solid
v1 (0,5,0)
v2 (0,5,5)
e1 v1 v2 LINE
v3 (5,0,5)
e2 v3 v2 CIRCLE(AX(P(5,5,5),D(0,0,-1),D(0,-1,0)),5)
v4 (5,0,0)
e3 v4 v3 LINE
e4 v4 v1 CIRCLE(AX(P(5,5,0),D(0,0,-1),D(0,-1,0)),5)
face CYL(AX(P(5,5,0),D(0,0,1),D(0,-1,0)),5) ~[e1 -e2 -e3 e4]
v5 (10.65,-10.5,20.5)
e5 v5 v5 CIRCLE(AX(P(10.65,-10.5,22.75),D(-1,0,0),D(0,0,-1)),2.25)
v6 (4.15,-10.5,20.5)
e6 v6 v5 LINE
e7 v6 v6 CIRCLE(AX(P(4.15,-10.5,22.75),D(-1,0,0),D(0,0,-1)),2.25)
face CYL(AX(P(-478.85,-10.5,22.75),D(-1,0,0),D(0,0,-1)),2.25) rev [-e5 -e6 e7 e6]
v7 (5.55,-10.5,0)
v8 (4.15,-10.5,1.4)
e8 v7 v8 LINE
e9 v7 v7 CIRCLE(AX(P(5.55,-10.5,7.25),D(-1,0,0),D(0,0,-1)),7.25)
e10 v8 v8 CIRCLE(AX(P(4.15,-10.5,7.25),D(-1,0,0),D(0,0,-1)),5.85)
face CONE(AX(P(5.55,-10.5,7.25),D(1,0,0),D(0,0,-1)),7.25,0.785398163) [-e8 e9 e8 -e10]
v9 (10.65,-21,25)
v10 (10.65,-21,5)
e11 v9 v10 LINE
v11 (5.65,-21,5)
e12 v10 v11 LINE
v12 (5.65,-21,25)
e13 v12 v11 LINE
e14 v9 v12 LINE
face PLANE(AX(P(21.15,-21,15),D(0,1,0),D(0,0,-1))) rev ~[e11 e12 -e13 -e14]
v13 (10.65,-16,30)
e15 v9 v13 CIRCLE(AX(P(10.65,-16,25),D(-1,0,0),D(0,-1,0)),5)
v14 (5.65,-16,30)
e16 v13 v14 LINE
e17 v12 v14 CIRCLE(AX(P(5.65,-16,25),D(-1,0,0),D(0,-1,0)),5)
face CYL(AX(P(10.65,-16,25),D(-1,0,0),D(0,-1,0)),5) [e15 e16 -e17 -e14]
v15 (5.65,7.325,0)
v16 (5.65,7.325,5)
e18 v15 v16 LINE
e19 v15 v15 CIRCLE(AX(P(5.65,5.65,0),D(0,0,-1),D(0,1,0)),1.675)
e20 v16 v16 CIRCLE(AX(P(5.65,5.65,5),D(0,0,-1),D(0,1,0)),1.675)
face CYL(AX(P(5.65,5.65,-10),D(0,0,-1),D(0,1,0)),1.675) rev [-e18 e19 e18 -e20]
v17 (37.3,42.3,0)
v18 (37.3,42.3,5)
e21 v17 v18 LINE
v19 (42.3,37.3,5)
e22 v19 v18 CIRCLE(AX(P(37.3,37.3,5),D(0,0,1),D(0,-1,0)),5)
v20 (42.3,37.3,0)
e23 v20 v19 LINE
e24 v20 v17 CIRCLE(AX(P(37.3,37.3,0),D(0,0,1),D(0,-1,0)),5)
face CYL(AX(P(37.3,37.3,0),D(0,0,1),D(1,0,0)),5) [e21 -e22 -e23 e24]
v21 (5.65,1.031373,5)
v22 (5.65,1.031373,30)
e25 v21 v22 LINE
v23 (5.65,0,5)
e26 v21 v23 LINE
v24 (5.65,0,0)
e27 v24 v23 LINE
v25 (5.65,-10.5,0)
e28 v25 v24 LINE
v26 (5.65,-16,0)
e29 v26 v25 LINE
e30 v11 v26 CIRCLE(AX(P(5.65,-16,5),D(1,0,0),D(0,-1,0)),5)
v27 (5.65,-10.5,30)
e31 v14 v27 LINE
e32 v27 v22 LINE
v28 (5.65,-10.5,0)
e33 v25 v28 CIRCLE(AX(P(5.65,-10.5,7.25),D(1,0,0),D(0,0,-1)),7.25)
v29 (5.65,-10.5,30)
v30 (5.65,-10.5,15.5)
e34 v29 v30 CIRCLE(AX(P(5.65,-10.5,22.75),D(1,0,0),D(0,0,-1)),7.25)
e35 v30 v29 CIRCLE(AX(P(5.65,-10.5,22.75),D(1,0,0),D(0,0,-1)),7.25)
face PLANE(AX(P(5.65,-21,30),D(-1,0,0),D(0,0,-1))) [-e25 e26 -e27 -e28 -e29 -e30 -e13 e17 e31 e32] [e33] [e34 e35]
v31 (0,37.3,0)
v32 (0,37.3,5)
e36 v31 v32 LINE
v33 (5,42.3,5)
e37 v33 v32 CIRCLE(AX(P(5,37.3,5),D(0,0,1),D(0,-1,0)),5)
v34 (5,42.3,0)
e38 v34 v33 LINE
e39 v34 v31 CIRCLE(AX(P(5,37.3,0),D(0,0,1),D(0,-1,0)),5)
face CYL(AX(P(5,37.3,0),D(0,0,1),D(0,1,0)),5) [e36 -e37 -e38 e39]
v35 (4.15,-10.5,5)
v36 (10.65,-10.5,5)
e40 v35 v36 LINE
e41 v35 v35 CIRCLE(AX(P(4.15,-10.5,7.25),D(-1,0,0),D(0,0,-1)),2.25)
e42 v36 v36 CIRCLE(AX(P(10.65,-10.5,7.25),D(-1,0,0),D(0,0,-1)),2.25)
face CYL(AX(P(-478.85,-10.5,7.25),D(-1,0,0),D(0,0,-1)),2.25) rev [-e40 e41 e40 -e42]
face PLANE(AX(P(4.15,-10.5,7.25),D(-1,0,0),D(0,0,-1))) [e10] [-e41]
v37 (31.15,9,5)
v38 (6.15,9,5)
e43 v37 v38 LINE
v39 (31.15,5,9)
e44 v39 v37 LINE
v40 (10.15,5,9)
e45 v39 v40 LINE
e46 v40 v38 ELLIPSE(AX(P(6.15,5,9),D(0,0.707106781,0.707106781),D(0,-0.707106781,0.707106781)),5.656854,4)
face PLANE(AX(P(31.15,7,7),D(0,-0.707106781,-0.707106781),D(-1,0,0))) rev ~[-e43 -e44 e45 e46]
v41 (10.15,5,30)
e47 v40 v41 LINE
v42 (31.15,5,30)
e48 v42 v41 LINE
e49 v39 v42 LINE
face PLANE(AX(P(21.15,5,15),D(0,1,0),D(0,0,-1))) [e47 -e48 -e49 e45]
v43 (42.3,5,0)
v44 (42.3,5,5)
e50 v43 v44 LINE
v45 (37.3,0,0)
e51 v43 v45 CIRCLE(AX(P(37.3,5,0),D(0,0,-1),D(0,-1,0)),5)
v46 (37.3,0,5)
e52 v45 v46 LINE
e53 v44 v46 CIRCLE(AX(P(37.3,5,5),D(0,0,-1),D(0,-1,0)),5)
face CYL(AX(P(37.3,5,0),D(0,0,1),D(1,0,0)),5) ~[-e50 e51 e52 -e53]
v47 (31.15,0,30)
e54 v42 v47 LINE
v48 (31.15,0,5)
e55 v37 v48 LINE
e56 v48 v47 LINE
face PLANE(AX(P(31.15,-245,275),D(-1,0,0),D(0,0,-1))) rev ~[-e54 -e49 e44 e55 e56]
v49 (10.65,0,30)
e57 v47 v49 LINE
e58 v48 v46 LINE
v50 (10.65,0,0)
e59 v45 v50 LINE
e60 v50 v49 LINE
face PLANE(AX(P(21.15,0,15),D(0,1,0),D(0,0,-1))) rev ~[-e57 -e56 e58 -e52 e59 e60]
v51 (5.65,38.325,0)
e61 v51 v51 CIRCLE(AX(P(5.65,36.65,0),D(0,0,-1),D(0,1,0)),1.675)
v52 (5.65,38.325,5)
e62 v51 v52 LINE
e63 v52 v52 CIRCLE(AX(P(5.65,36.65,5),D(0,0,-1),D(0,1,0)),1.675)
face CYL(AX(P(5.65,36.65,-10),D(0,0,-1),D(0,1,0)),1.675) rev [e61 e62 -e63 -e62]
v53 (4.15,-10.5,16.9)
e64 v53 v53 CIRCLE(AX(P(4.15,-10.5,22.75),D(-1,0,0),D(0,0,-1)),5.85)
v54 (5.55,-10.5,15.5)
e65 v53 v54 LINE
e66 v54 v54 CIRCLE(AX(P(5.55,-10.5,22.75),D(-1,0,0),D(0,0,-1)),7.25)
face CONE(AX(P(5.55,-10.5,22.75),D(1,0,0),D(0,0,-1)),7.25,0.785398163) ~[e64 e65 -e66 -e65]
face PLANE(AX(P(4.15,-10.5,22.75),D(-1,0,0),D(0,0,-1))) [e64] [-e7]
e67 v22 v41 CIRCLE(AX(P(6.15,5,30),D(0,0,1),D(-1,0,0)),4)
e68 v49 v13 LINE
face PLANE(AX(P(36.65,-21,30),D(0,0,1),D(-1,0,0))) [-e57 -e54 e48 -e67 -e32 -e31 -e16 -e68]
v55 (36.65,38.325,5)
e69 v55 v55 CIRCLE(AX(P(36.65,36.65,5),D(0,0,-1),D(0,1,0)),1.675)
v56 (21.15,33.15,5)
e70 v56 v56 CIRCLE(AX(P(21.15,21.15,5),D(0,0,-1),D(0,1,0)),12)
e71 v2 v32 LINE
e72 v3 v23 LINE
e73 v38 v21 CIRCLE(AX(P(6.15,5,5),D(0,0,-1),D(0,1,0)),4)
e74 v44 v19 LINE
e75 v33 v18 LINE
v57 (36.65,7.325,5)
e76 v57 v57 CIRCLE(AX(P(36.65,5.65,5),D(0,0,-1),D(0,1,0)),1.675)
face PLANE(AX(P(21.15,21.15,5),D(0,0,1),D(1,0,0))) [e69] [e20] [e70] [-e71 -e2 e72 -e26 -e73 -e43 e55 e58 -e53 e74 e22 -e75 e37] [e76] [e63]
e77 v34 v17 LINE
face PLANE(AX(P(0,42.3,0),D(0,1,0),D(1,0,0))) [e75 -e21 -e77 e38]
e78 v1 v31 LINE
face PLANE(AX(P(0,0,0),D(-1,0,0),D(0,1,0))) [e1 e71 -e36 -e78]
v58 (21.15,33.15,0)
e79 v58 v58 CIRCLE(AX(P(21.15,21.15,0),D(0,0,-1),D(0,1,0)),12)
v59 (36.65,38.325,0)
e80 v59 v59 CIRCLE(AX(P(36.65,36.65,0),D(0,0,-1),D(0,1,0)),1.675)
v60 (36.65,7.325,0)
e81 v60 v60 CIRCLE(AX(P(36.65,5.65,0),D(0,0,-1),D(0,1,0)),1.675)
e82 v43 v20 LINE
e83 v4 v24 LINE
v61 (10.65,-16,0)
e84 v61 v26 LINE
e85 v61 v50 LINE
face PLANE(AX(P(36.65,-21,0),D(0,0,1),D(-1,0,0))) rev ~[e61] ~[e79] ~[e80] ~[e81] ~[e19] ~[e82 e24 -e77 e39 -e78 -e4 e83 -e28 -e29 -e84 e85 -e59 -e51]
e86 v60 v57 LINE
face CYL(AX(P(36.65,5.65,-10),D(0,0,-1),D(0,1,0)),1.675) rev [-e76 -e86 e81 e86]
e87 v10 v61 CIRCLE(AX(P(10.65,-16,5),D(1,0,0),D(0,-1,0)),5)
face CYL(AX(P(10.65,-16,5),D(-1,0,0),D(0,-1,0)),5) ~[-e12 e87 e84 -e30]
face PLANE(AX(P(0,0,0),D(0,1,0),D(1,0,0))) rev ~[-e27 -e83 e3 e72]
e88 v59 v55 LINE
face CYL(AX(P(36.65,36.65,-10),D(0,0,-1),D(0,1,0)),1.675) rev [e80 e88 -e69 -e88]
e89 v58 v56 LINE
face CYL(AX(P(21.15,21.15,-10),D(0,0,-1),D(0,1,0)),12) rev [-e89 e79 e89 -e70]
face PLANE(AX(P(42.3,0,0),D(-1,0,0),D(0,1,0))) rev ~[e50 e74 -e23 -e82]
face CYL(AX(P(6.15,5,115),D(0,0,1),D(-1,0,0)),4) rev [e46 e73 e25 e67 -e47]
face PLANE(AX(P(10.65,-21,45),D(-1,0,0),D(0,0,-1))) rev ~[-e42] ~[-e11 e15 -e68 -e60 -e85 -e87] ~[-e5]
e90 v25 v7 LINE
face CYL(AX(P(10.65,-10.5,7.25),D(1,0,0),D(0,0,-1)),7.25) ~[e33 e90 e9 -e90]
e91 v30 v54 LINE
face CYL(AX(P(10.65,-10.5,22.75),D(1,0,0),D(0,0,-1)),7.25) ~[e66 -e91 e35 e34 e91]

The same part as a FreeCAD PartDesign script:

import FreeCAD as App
import Part
import Sketcher

V = App.Vector
Q = App.Units.Quantity


def edges_at(feature, points):
    """Names of the edges that pass closest to the given points."""
    edges = feature.Shape.Edges
    near = lambda p: min(range(len(edges)), key=lambda i: edges[i].distToShape(Part.Vertex(*p))[0])
    return sorted({f"Edge{near(p) + 1}" for p in points})

doc = App.newDocument("Part")
body = doc.addObject("PartDesign::Body", "Body")

sketch1 = doc.addObject("Sketcher::SketchObject", "Sketch")
body.addObject(sketch1)
sketch1.AttachmentSupport = (doc.XY_Plane, [""])
sketch1.MapMode = "FlatFace"
sketch1.AttachmentOffset = App.Placement(V(0, 0, -250), App.Rotation())
sketch1.addGeometry([
    Part.LineSegment(V(-250, -10, 0), V(-250, -510, 0)),
    Part.LineSegment(V(-250, -510, 0), V(250, -510, 0)),
    Part.LineSegment(V(250, -510, 0), V(250, -10, 0)),
    Part.LineSegment(V(250, -10, 0), V(-250, -10, 0)),
], False)
sketch1.addConstraint([
    Sketcher.Constraint("Coincident", 0, 2, 1, 1),
    Sketcher.Constraint("Coincident", 1, 2, 2, 1),
    Sketcher.Constraint("Coincident", 2, 2, 3, 1),
    Sketcher.Constraint("Coincident", 3, 2, 0, 1),
    Sketcher.Constraint("Vertical", 0),
    Sketcher.Constraint("Horizontal", 1),
    Sketcher.Constraint("Vertical", 2),
    Sketcher.Constraint("Horizontal", 3),
    Sketcher.Constraint("Equal", 3, 0),
    Sketcher.Constraint("DistanceX", 1, 1, 1, 2, Q("500 mm")),
    Sketcher.Constraint("DistanceX", 0, 2, -1, 1, Q("250 mm")),
    Sketcher.Constraint("DistanceY", 0, 2, -1, 1, Q("510 mm")),
])
pad1 = doc.addObject("PartDesign::Pad", "Pad")
body.addObject(pad1)
pad1.Profile = sketch1
pad1.Length = 500
body2 = doc.addObject("PartDesign::Body", "Body001")

sketch2 = doc.addObject("Sketcher::SketchObject", "Sketch001")
body2.addObject(sketch2)
sketch2.AttachmentSupport = (doc.getObject("XZ_Plane001"), [""])
sketch2.MapMode = "FlatFace"
sketch2.AttachmentOffset = App.Placement(V(0, 0, -500), App.Rotation())
sketch2.addGeometry(Part.Circle(V(15.5, 0, 0), V(0, 0, 1), 2.25), False)
sketch2.addConstraint([
    Sketcher.Constraint("PointOnObject", 0, 3, -1),
    Sketcher.Constraint("Diameter", 0, Q("4.5 mm")),
    Sketcher.Constraint("DistanceX", -1, 1, 0, 3, Q("15.5 mm")),
])
pad2 = doc.addObject("PartDesign::Pad", "Pad001")
body2.addObject(pad2)
pad2.Profile = sketch2
pad2.Length = 1000
body3 = doc.addObject("PartDesign::Body", "Body002")
body3.AllowCompound = True

sketch3 = doc.addObject("Sketcher::SketchObject", "Sketch002")
body3.addObject(sketch3)
sketch3.AttachmentSupport = (doc.getObject("XZ_Plane002"), [""])
sketch3.MapMode = "FlatFace"
sketch3.AttachmentOffset = App.Placement(V(0, 0, -500), App.Rotation())
sketch3.addGeometry(Part.Circle(V(0, 0, 0), V(0, 0, 1), 2.25), False)
sketch3.addConstraint([
    Sketcher.Constraint("Coincident", 0, 3, -1, 1),
    Sketcher.Constraint("Diameter", 0, Q("4.5 mm")),
])
pad3 = doc.addObject("PartDesign::Pad", "Pad002")
body3.addObject(pad3)
pad3.Profile = sketch3
pad3.Length = 1000
doc.recompute()

boolean = doc.addObject("PartDesign::Boolean", "Boolean")
body3.addObject(boolean)
boolean.Type = "Fuse"
boolean.addObjects([body2])
body4 = doc.addObject("PartDesign::Body", "Body003")
body4.AllowCompound = True
doc.recompute()

body3.Placement = App.Placement(V(2.25, 0, -15.5), App.Rotation(V(0, 0, 1), 0))
boolean2 = doc.addObject("PartDesign::Boolean", "Boolean001")
body4.addObject(boolean2)
boolean2.Type = "Fuse"
boolean2.addObjects([body3])
doc.recompute()

boolean3 = doc.addObject("PartDesign::Boolean", "Boolean002")
body4.addObject(boolean3)
boolean3.Type = "Fuse"
boolean3.addObjects([body])
body5 = doc.addObject("PartDesign::Body", "Body004")

sketch4 = doc.addObject("Sketcher::SketchObject", "Sketch003")
body5.addObject(sketch4)
sketch4.AttachmentSupport = (doc.getObject("XZ_Plane004"), [""])
sketch4.MapMode = "FlatFace"
sketch4.addGeometry(Part.Circle(V(15.5, 0, 0), V(0, 0, 1), 7.25), False)
sketch4.addConstraint([
    Sketcher.Constraint("PointOnObject", 0, 3, -1),
    Sketcher.Constraint("Diameter", 0, Q("14.5 mm")),
    Sketcher.Constraint("DistanceX", -1, 1, 0, 3, Q("15.5 mm")),
])
pad4 = doc.addObject("PartDesign::Pad", "Pad003")
body5.addObject(pad4)
pad4.Profile = sketch4
pad4.Length = 6.5
body6 = doc.addObject("PartDesign::Body", "Body005")
body6.AllowCompound = True

sketch5 = doc.addObject("Sketcher::SketchObject", "Sketch004")
body6.addObject(sketch5)
sketch5.AttachmentSupport = (doc.getObject("XZ_Plane005"), [""])
sketch5.MapMode = "FlatFace"
sketch5.addGeometry(Part.Circle(V(0, 0, 0), V(0, 0, 1), 7.25), False)
sketch5.addConstraint([
    Sketcher.Constraint("Coincident", 0, 3, -1, 1),
    Sketcher.Constraint("Diameter", 0, Q("14.5 mm")),
])
pad5 = doc.addObject("PartDesign::Pad", "Pad004")
body6.addObject(pad5)
pad5.Profile = sketch5
pad5.Length = 6.5
doc.recompute()

boolean4 = doc.addObject("PartDesign::Boolean", "Boolean003")
body6.addObject(boolean4)
boolean4.Type = "Fuse"
boolean4.addObjects([body5])
body7 = doc.addObject("PartDesign::Body", "Body006")
body7.AllowCompound = True
doc.recompute()

body6.Placement = App.Placement(V(2.25, 10.5, -15.5), App.Rotation(V(1, 0, 0), 180))
boolean5 = doc.addObject("PartDesign::Boolean", "Boolean004")
body7.addObject(boolean5)
boolean5.Type = "Fuse"
boolean5.addObjects([body6])
body8 = doc.addObject("PartDesign::Body", "Body007")

sketch6 = doc.addObject("Sketcher::SketchObject", "Sketch005")
body8.addObject(sketch6)
sketch6.AttachmentSupport = (doc.getObject("XZ_Plane007"), [""])
sketch6.MapMode = "FlatFace"
sketch6.addGeometry(Part.Circle(V(15.5, 0, 0), V(0, 0, 1), 7.25), False)
sketch6.addConstraint([
    Sketcher.Constraint("PointOnObject", 0, 3, -1),
    Sketcher.Constraint("Diameter", 0, Q("14.5 mm")),
    Sketcher.Constraint("DistanceX", -1, 1, 0, 3, Q("15.5 mm")),
])
pad6 = doc.addObject("PartDesign::Pad", "Pad005")
body8.addObject(pad6)
pad6.Profile = sketch6
pad6.Length = 6.5
body9 = doc.addObject("PartDesign::Body", "Body008")
body9.AllowCompound = True

sketch7 = doc.addObject("Sketcher::SketchObject", "Sketch006")
body9.addObject(sketch7)
sketch7.AttachmentSupport = (doc.getObject("XZ_Plane008"), [""])
sketch7.MapMode = "FlatFace"
sketch7.addGeometry(Part.Circle(V(0, 0, 0), V(0, 0, 1), 7.25), False)
sketch7.addConstraint([
    Sketcher.Constraint("Coincident", 0, 3, -1, 1),
    Sketcher.Constraint("Diameter", 0, Q("14.5 mm")),
])
pad7 = doc.addObject("PartDesign::Pad", "Pad006")
body9.addObject(pad7)
pad7.Profile = sketch7
pad7.Length = 6.5
doc.recompute()

boolean6 = doc.addObject("PartDesign::Boolean", "Boolean005")
body9.addObject(boolean6)
boolean6.Type = "Fuse"
boolean6.addObjects([body8])
body10 = doc.addObject("PartDesign::Body", "Body009")
body10.AllowCompound = True
doc.recompute()

body9.Placement = App.Placement(V(2.25, -10.5, -15.5), App.Rotation(V(0, 0, 1), 0))
boolean7 = doc.addObject("PartDesign::Boolean", "Boolean006")
body10.addObject(boolean7)
boolean7.Type = "Fuse"
boolean7.addObjects([body9])
doc.recompute()

boolean8 = doc.addObject("PartDesign::Boolean", "Boolean007")
body10.addObject(boolean8)
boolean8.Type = "Fuse"
boolean8.addObjects([body7])
body11 = doc.addObject("PartDesign::Body", "Body010")

sketch8 = doc.addObject("Sketcher::SketchObject", "Sketch007")
body11.addObject(sketch8)
sketch8.AttachmentSupport = (doc.getObject("YZ_Plane010"), [""])
sketch8.MapMode = "FlatFace"
sketch8.AttachmentOffset = App.Placement(V(0, 0, -100), App.Rotation())
sketch8.addGeometry(Part.Circle(V(15, 13, 0), V(0, 0, 1), 4), False)
sketch8.addConstraint([
    Sketcher.Constraint("Diameter", 0, Q("8 mm")),
    Sketcher.Constraint("DistanceX", -1, 1, 0, 3, Q("15 mm")),
    Sketcher.Constraint("DistanceY", -1, 1, 0, 3, Q("13 mm")),
])
pad8 = doc.addObject("PartDesign::Pad", "Pad007")
body11.addObject(pad8)
pad8.Profile = sketch8
pad8.Length = 200
body12 = doc.addObject("PartDesign::Body", "Body011")
body12.AllowCompound = True

sketch9 = doc.addObject("Sketcher::SketchObject", "Sketch008")
body12.addObject(sketch9)
sketch9.AttachmentSupport = (doc.getObject("XY_Plane011"), [""])
sketch9.MapMode = "FlatFace"
sketch9.AttachmentOffset = App.Placement(V(0, 0, -13), App.Rotation())
sketch9.addGeometry([
    Part.LineSegment(V(-30, 10.5, 0), V(-30, -10.5, 0)),
    Part.LineSegment(V(-30, -10.5, 0), V(30, -10.5, 0)),
    Part.LineSegment(V(30, -10.5, 0), V(30, 10.5, 0)),
    Part.LineSegment(V(30, 10.5, 0), V(-30, 10.5, 0)),
], False)
sketch9.addConstraint([
    Sketcher.Constraint("Coincident", 0, 2, 1, 1),
    Sketcher.Constraint("Coincident", 1, 2, 2, 1),
    Sketcher.Constraint("Coincident", 2, 2, 3, 1),
    Sketcher.Constraint("Coincident", 3, 2, 0, 1),
    Sketcher.Constraint("Vertical", 0),
    Sketcher.Constraint("Horizontal", 1),
    Sketcher.Constraint("Vertical", 2),
    Sketcher.Constraint("Horizontal", 3),
    Sketcher.Constraint("Symmetric", 0, 2, 2, 2, -1, 1),
    Sketcher.Constraint("DistanceX", 1, 1, 1, 2, Q("60 mm")),
    Sketcher.Constraint("DistanceY", 0, 2, 0, 1, Q("21 mm")),
])
pad9 = doc.addObject("PartDesign::Pad", "Pad008")
body12.addObject(pad9)
pad9.Profile = sketch9
pad9.Length = 21
doc.recompute()

boolean9 = doc.addObject("PartDesign::Boolean", "Boolean008")
body12.addObject(boolean9)
boolean9.Type = "Fuse"
boolean9.addObjects([body11])
body13 = doc.addObject("PartDesign::Body", "Body012")

sketch10 = doc.addObject("Sketcher::SketchObject", "Sketch009")
body13.addObject(sketch10)
sketch10.AttachmentSupport = (doc.getObject("XY_Plane012"), [""])
sketch10.MapMode = "FlatFace"
sketch10.AttachmentOffset = App.Placement(V(0, 0, -13), App.Rotation())
sketch10.addGeometry([
    Part.LineSegment(V(-15, 15.5, 0), V(-15, -15.5, 0)),
    Part.LineSegment(V(-15, -15.5, 0), V(15, -15.5, 0)),
    Part.LineSegment(V(15, -15.5, 0), V(15, 15.5, 0)),
    Part.LineSegment(V(15, 15.5, 0), V(-15, 15.5, 0)),
], False)
sketch10.addConstraint([
    Sketcher.Constraint("Coincident", 0, 2, 1, 1),
    Sketcher.Constraint("Coincident", 1, 2, 2, 1),
    Sketcher.Constraint("Coincident", 2, 2, 3, 1),
    Sketcher.Constraint("Coincident", 3, 2, 0, 1),
    Sketcher.Constraint("Vertical", 0),
    Sketcher.Constraint("Horizontal", 1),
    Sketcher.Constraint("Vertical", 2),
    Sketcher.Constraint("Horizontal", 3),
    Sketcher.Constraint("Symmetric", 0, 2, 2, 2, -1, 1),
    Sketcher.Constraint("DistanceX", 1, 1, 1, 2, Q("30 mm")),
    Sketcher.Constraint("DistanceY", 0, 2, 0, 1, Q("31 mm")),
])
pad10 = doc.addObject("PartDesign::Pad", "Pad009")
body13.addObject(pad10)
pad10.Profile = sketch10
pad10.Length = 26
doc.recompute()

boolean10 = doc.addObject("PartDesign::Boolean", "Boolean009")
body13.addObject(boolean10)
boolean10.Type = "Cut"
boolean10.addObjects([body12])
body14 = doc.addObject("PartDesign::Body", "Body013")
doc.recompute()

body13.Placement = App.Placement(V(10, 0, -13), App.Rotation(V(0, 0, 1), 0))
boolean11 = doc.addObject("PartDesign::Boolean", "Boolean010")
body14.addObject(boolean11)
boolean11.Type = "Fuse"
boolean11.addObjects([body13])
doc.recompute()

boolean12 = doc.addObject("PartDesign::Boolean", "Boolean011")
body14.addObject(boolean12)
boolean12.Type = "Fuse"
boolean12.addObjects([body10])
doc.recompute()

boolean13 = doc.addObject("PartDesign::Boolean", "Boolean012")
body14.addObject(boolean13)
boolean13.Type = "Cut"
boolean13.addObjects([body4])
body15 = doc.addObject("PartDesign::Body", "Body014")
doc.recompute()

body14.Placement = App.Placement(V(0, 0, 0), App.Rotation(V(0, 1, 0), 90))
boolean14 = doc.addObject("PartDesign::Boolean", "Boolean013")
body15.addObject(boolean14)
boolean14.Type = "Fuse"
boolean14.addObjects([body14])
body16 = doc.addObject("PartDesign::Body", "Body015")
doc.recompute()

body15.Placement = App.Placement(V(21.15, 5, 25), App.Rotation(V(0, 0, 1), 90))
boolean15 = doc.addObject("PartDesign::Boolean", "Boolean014")
body16.addObject(boolean15)
boolean15.Type = "Fuse"
boolean15.addObjects([body15])
body17 = doc.addObject("PartDesign::Body", "Body016")
body17.AllowCompound = True

sketch11 = doc.addObject("Sketcher::SketchObject", "Sketch010")
body17.addObject(sketch11)
sketch11.AttachmentSupport = (doc.getObject("XY_Plane016"), [""])
sketch11.MapMode = "FlatFace"
sketch11.addGeometry([
    Part.Circle(V(0, 0, 0), V(0, 0, 1), 12),
    Part.Circle(V(15.5, 15.5, 0), V(0, 0, 1), 1.675),
    Part.Circle(V(-15.5, 15.5, 0), V(0, 0, 1), 1.675),
    Part.Circle(V(-15.5, -15.5, 0), V(0, 0, 1), 1.675),
    Part.Circle(V(15.5, -15.5, 0), V(0, 0, 1), 1.675),
], False)
sketch11.addConstraint([
    Sketcher.Constraint("Coincident", 0, 3, -1, 1),
    Sketcher.Constraint("Equal", 1, 2),
    Sketcher.Constraint("Equal", 2, 3),
    Sketcher.Constraint("Equal", 3, 4),
    Sketcher.Constraint("Symmetric", 1, 3, 3, 3, -1, 1),
    Sketcher.Constraint("Symmetric", 2, 3, 4, 3, -1, 1),
    Sketcher.Constraint("Symmetric", 1, 3, 2, 3, -2),
    Sketcher.Constraint("Diameter", 0, Q("24 mm")),
    Sketcher.Constraint("Diameter", 1, Q("3.35 mm")),
    Sketcher.Constraint("DistanceX", 2, 3, 1, 3, Q("31 mm")),
    Sketcher.Constraint("DistanceY", 3, 3, 2, 3, Q("31 mm")),
])
pad11 = doc.addObject("PartDesign::Pad", "Pad010")
body17.addObject(pad11)
pad11.Profile = sketch11
pad11.Length = 20
body18 = doc.addObject("PartDesign::Body", "Body017")
body18.AllowCompound = True
doc.recompute()

body17.Placement = App.Placement(V(21.15, 21.15, -10), App.Rotation(V(0, 0, 1), 0))
boolean16 = doc.addObject("PartDesign::Boolean", "Boolean015")
body18.addObject(boolean16)
boolean16.Type = "Fuse"
boolean16.addObjects([body17])
body19 = doc.addObject("PartDesign::Body", "Body018")

sketch12 = doc.addObject("Sketcher::SketchObject", "Sketch011")
body19.addObject(sketch12)
sketch12.AttachmentSupport = (doc.getObject("XY_Plane018"), [""])
sketch12.MapMode = "FlatFace"
sketch12.addGeometry([
    Part.LineSegment(V(0, 42.3, 0), V(0, 0, 0)),
    Part.LineSegment(V(0, 0, 0), V(42.3, 0, 0)),
    Part.LineSegment(V(42.3, 0, 0), V(42.3, 42.3, 0)),
    Part.LineSegment(V(42.3, 42.3, 0), V(0, 42.3, 0)),
], False)
sketch12.addConstraint([
    Sketcher.Constraint("Coincident", 0, 2, 1, 1),
    Sketcher.Constraint("Coincident", 1, 2, 2, 1),
    Sketcher.Constraint("Coincident", 2, 2, 3, 1),
    Sketcher.Constraint("Coincident", 3, 2, 0, 1),
    Sketcher.Constraint("Vertical", 0),
    Sketcher.Constraint("Horizontal", 1),
    Sketcher.Constraint("Vertical", 2),
    Sketcher.Constraint("Horizontal", 3),
    Sketcher.Constraint("Coincident", 0, 2, -1, 1),
    Sketcher.Constraint("Equal", 3, 0),
    Sketcher.Constraint("DistanceX", 1, 1, 1, 2, Q("42.3 mm")),
])
pad12 = doc.addObject("PartDesign::Pad", "Pad011")
body19.addObject(pad12)
pad12.Profile = sketch12
pad12.Length = 5
doc.recompute()

boolean17 = doc.addObject("PartDesign::Boolean", "Boolean016")
body19.addObject(boolean17)
boolean17.Type = "Cut"
boolean17.addObjects([body18])
doc.recompute()

boolean18 = doc.addObject("PartDesign::Boolean", "Boolean017")
body19.addObject(boolean18)
boolean18.Type = "Fuse"
boolean18.addObjects([body16])
doc.recompute()

chamfer = doc.addObject("PartDesign::Chamfer", "Chamfer")
body19.addObject(chamfer)
chamfer.Base = (boolean18, edges_at(boolean18, [(20.65, 5, 5)]))
chamfer.Size = 4
doc.recompute()

chamfer2 = doc.addObject("PartDesign::Chamfer", "Chamfer001")
body19.addObject(chamfer2)
chamfer2.Base = (chamfer, edges_at(chamfer, [(4.15, -10.5, 30)]))
chamfer2.Size = 1.4
doc.recompute()

chamfer3 = doc.addObject("PartDesign::Chamfer", "Chamfer002")
body19.addObject(chamfer3)
chamfer3.Base = (chamfer2, edges_at(chamfer2, [(4.15, -10.5, 14.5)]))
chamfer3.Size = 1.4
doc.recompute()

fillet = doc.addObject("PartDesign::Fillet", "Fillet")
body19.addObject(fillet)
fillet.Base = (chamfer3, edges_at(chamfer3, [(8.15, -21, 30)]))
fillet.Radius = 5
doc.recompute()

fillet2 = doc.addObject("PartDesign::Fillet", "Fillet001")
body19.addObject(fillet2)
fillet2.Base = (fillet, edges_at(fillet, [(8.15, -21, 0)]))
fillet2.Radius = 5
doc.recompute()

fillet3 = doc.addObject("PartDesign::Fillet", "Fillet002")
body19.addObject(fillet3)
fillet3.Base = (fillet2, edges_at(fillet2, [(0, 0, 2.5)]))
fillet3.Radius = 5
doc.recompute()

fillet4 = doc.addObject("PartDesign::Fillet", "Fillet003")
body19.addObject(fillet4)
fillet4.Base = (fillet3, edges_at(fillet3, [(42.3, 0, 2.5)]))
fillet4.Radius = 5
doc.recompute()

fillet5 = doc.addObject("PartDesign::Fillet", "Fillet004")
body19.addObject(fillet5)
fillet5.Base = (fillet4, edges_at(fillet4, [(42.3, 42.3, 2.5)]))
fillet5.Radius = 5
doc.recompute()

fillet6 = doc.addObject("PartDesign::Fillet", "Fillet005")
body19.addObject(fillet6)
fillet6.Base = (fillet5, edges_at(fillet5, [(0, 42.3, 2.5)]))
fillet6.Radius = 5

doc.recompute()
